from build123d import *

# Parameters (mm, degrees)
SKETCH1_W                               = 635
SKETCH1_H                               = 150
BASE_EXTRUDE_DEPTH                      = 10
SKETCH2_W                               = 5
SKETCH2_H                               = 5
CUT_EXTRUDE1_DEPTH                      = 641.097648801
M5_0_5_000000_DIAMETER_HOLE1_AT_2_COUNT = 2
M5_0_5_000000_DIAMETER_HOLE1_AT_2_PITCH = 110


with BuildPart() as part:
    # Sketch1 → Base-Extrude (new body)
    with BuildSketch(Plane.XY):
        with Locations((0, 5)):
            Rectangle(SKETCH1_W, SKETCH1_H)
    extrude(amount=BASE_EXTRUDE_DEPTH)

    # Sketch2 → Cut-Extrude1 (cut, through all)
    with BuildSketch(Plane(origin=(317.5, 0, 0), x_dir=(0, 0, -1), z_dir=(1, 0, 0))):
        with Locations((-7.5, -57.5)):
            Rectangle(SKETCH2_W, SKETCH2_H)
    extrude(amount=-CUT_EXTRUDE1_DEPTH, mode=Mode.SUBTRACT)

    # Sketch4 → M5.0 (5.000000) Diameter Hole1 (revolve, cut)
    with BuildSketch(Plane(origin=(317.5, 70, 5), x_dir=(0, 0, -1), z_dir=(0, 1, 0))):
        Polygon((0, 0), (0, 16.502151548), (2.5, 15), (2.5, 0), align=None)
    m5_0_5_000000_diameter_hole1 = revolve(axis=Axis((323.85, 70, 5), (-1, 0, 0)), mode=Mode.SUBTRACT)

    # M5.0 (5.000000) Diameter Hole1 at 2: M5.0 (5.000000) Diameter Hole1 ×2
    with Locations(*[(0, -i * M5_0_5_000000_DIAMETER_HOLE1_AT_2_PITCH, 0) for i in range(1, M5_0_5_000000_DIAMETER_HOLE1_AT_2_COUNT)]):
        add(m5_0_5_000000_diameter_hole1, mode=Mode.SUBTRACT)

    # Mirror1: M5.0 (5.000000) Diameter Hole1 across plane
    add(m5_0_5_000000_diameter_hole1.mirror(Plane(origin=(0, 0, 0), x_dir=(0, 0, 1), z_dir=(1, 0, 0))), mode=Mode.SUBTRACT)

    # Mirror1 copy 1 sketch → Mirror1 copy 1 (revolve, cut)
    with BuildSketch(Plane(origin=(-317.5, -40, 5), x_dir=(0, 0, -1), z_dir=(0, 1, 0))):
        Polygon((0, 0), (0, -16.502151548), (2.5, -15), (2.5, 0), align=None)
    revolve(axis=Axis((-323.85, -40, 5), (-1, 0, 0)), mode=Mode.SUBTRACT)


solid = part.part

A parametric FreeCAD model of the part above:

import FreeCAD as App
import Part
import Sketcher

V = App.Vector
Q = App.Units.Quantity


def add_polygon(sketch, points):
    """Adds a closed chain of lines whose ends are joined by coincident constraints."""
    first, n = sketch.GeometryCount, len(points)
    for a, b in zip(points, points[1:] + points[:1]):
        sketch.addGeometry(Part.LineSegment(App.Vector(*a, 0), App.Vector(*b, 0)), False)
    for i in range(n):
        sketch.addConstraint(Sketcher.Constraint("Coincident", first + i, 2, first + (i + 1) % n, 1))

doc = App.newDocument("Part")
body = doc.addObject("PartDesign::Body", "Body")

# Sketch on XY plane
sketch1 = body.newObject("Sketcher::SketchObject", "Sketch")
sketch1.AttachmentSupport = (doc.getObject("XY_Plane"), [""])
sketch1.MapMode = "FlatFace"
add_polygon(sketch1, [(-317.5, 80), (-317.5, -70), (317.5, -70), (317.5, 80)])  # lines 0-3
sketch1.addConstraint([
    Sketcher.Constraint("Vertical", 0),
    Sketcher.Constraint("Horizontal", 1),
    Sketcher.Constraint("Vertical", 2),
    Sketcher.Constraint("Horizontal", 3),
    Sketcher.Constraint("DistanceX", 1, 1, 1, 2, Q("635 mm")),
    Sketcher.Constraint("DistanceY", 0, 2, 0, 1, Q("150 mm")),
    Sketcher.Constraint("DistanceY", 0, 2, -1, 1, Q("70 mm")),
    Sketcher.Constraint("DistanceX", 0, 2, -1, 1, Q("317.5 mm")),
])
pad1 = body.newObject("PartDesign::Pad", "Pad")
pad1.Profile = sketch1
pad1.Length = 10

# Sketch on YZ plane
sketch2 = body.newObject("Sketcher::SketchObject", "Sketch001")
sketch2.AttachmentSupport = (doc.getObject("YZ_Plane"), [""])
sketch2.MapMode = "FlatFace"
sketch2.AttachmentOffset = App.Placement(V(0, 0, 317.5), App.Rotation())
add_polygon(sketch2, [(-55, 10), (-60, 10), (-60, 5), (-55, 5)])  # lines 0-3
sketch2.addConstraint([
    Sketcher.Constraint("Horizontal", 0),
    Sketcher.Constraint("Vertical", 1),
    Sketcher.Constraint("Horizontal", 2),
    Sketcher.Constraint("Vertical", 3),
    Sketcher.Constraint("Equal", 2, 1),
    Sketcher.Constraint("DistanceX", 0, 2, 0, 1, Q("5 mm")),
    Sketcher.Constraint("DistanceX", 0, 2, -1, 1, Q("60 mm")),
    Sketcher.Constraint("DistanceY", -1, 1, 0, 2, Q("10 mm")),
])
pocket1 = body.newObject("PartDesign::Pocket", "Pocket")
pocket1.Profile = sketch2
pocket1.Type = "ThroughAll"

# Sketch on XZ plane
sketch3 = body.newObject("Sketcher::SketchObject", "Sketch002")
sketch3.AttachmentSupport = (doc.getObject("XZ_Plane"), [""])
sketch3.MapMode = "FlatFace"
sketch3.AttachmentOffset = App.Placement(V(0, 0, -70), App.Rotation())
add_polygon(sketch3, [(300.997848, 5), (317.5, 5), (317.5, 2.5), (302.5, 2.5)])  # lines 0-3
sketch3.addGeometry(Part.LineSegment(V(317.5, 5, 0), V(300.997848, 5, 0)), True)  # axis
sketch3.addConstraint([
    Sketcher.Constraint("Horizontal", 0),
    Sketcher.Constraint("Vertical", 1),
    Sketcher.Constraint("Horizontal", 2),
    Sketcher.Constraint("Horizontal", 4),
    Sketcher.Constraint("Coincident", 4, 1, 0, 2),
    Sketcher.Constraint("Equal", 0, 4),
    Sketcher.Constraint("DistanceX", 2, 2, 2, 1, Q("15 mm")),
    Sketcher.Constraint("Angle", 3, Q("121 deg")),
    Sketcher.Constraint("DistanceY", 1, 2, 1, 1, Q("2.5 mm")),
    Sketcher.Constraint("DistanceY", -1, 1, 0, 2, Q("5 mm")),
    Sketcher.Constraint("DistanceX", -1, 1, 0, 2, Q("317.5 mm")),
])
groove = body.newObject("PartDesign::Groove", "Groove")
groove.Profile = sketch3
groove.ReferenceAxis = (sketch3, ["Axis0"])
groove.Angle = 360
doc.recompute()

linearpattern = body.newObject("PartDesign::LinearPattern", "LinearPattern")
linearpattern.Originals = [groove]
linearpattern.Direction = (doc.getObject("Y_Axis"), [""])
linearpattern.Mode = "offset"
linearpattern.Offset = 110
linearpattern.Occurrences = 2
linearpattern.Reversed = True
body.Tip = linearpattern
doc.recompute()

mirrored = body.newObject("PartDesign::Mirrored", "Mirrored")
mirrored.Originals = [groove]
mirrored.MirrorPlane = (doc.getObject("YZ_Plane"), [""])
body.Tip = mirrored

# Sketch on XZ plane
sketch4 = body.newObject("Sketcher::SketchObject", "Sketch003")
sketch4.AttachmentSupport = (doc.getObject("XZ_Plane"), [""])
sketch4.MapMode = "FlatFace"
sketch4.AttachmentOffset = App.Placement(V(0, 0, 40), App.Rotation())
add_polygon(sketch4, [(-317.5, 5), (-300.997848, 5), (-302.5, 2.5), (-317.5, 2.5)])  # lines 0-3
sketch4.addGeometry(Part.LineSegment(V(-300.997848, 5, 0), V(-317.5, 5, 0)), True)  # axis
sketch4.addConstraint([
    Sketcher.Constraint("Horizontal", 0),
    Sketcher.Constraint("Horizontal", 2),
    Sketcher.Constraint("Vertical", 3),
    Sketcher.Constraint("Horizontal", 4),
    Sketcher.Constraint("Coincident", 4, 1, 0, 2),
    Sketcher.Constraint("Vertical", 2, 2, 4, 2),
    Sketcher.Constraint("DistanceX", 2, 2, 2, 1, Q("15 mm")),
    Sketcher.Constraint("Angle", 1, Q("-121 deg")),
    Sketcher.Constraint("DistanceY", 3, 1, 3, 2, Q("2.5 mm")),
    Sketcher.Constraint("DistanceY", -1, 1, 0, 2, Q("5 mm")),
    Sketcher.Constraint("DistanceX", 1, 2, -1, 1, Q("302.5 mm")),
])
groove2 = body.newObject("PartDesign::Groove", "Groove001")
groove2.Profile = sketch4
groove2.ReferenceAxis = (sketch4, ["Axis0"])
groove2.Angle = 360

doc.recompute()
